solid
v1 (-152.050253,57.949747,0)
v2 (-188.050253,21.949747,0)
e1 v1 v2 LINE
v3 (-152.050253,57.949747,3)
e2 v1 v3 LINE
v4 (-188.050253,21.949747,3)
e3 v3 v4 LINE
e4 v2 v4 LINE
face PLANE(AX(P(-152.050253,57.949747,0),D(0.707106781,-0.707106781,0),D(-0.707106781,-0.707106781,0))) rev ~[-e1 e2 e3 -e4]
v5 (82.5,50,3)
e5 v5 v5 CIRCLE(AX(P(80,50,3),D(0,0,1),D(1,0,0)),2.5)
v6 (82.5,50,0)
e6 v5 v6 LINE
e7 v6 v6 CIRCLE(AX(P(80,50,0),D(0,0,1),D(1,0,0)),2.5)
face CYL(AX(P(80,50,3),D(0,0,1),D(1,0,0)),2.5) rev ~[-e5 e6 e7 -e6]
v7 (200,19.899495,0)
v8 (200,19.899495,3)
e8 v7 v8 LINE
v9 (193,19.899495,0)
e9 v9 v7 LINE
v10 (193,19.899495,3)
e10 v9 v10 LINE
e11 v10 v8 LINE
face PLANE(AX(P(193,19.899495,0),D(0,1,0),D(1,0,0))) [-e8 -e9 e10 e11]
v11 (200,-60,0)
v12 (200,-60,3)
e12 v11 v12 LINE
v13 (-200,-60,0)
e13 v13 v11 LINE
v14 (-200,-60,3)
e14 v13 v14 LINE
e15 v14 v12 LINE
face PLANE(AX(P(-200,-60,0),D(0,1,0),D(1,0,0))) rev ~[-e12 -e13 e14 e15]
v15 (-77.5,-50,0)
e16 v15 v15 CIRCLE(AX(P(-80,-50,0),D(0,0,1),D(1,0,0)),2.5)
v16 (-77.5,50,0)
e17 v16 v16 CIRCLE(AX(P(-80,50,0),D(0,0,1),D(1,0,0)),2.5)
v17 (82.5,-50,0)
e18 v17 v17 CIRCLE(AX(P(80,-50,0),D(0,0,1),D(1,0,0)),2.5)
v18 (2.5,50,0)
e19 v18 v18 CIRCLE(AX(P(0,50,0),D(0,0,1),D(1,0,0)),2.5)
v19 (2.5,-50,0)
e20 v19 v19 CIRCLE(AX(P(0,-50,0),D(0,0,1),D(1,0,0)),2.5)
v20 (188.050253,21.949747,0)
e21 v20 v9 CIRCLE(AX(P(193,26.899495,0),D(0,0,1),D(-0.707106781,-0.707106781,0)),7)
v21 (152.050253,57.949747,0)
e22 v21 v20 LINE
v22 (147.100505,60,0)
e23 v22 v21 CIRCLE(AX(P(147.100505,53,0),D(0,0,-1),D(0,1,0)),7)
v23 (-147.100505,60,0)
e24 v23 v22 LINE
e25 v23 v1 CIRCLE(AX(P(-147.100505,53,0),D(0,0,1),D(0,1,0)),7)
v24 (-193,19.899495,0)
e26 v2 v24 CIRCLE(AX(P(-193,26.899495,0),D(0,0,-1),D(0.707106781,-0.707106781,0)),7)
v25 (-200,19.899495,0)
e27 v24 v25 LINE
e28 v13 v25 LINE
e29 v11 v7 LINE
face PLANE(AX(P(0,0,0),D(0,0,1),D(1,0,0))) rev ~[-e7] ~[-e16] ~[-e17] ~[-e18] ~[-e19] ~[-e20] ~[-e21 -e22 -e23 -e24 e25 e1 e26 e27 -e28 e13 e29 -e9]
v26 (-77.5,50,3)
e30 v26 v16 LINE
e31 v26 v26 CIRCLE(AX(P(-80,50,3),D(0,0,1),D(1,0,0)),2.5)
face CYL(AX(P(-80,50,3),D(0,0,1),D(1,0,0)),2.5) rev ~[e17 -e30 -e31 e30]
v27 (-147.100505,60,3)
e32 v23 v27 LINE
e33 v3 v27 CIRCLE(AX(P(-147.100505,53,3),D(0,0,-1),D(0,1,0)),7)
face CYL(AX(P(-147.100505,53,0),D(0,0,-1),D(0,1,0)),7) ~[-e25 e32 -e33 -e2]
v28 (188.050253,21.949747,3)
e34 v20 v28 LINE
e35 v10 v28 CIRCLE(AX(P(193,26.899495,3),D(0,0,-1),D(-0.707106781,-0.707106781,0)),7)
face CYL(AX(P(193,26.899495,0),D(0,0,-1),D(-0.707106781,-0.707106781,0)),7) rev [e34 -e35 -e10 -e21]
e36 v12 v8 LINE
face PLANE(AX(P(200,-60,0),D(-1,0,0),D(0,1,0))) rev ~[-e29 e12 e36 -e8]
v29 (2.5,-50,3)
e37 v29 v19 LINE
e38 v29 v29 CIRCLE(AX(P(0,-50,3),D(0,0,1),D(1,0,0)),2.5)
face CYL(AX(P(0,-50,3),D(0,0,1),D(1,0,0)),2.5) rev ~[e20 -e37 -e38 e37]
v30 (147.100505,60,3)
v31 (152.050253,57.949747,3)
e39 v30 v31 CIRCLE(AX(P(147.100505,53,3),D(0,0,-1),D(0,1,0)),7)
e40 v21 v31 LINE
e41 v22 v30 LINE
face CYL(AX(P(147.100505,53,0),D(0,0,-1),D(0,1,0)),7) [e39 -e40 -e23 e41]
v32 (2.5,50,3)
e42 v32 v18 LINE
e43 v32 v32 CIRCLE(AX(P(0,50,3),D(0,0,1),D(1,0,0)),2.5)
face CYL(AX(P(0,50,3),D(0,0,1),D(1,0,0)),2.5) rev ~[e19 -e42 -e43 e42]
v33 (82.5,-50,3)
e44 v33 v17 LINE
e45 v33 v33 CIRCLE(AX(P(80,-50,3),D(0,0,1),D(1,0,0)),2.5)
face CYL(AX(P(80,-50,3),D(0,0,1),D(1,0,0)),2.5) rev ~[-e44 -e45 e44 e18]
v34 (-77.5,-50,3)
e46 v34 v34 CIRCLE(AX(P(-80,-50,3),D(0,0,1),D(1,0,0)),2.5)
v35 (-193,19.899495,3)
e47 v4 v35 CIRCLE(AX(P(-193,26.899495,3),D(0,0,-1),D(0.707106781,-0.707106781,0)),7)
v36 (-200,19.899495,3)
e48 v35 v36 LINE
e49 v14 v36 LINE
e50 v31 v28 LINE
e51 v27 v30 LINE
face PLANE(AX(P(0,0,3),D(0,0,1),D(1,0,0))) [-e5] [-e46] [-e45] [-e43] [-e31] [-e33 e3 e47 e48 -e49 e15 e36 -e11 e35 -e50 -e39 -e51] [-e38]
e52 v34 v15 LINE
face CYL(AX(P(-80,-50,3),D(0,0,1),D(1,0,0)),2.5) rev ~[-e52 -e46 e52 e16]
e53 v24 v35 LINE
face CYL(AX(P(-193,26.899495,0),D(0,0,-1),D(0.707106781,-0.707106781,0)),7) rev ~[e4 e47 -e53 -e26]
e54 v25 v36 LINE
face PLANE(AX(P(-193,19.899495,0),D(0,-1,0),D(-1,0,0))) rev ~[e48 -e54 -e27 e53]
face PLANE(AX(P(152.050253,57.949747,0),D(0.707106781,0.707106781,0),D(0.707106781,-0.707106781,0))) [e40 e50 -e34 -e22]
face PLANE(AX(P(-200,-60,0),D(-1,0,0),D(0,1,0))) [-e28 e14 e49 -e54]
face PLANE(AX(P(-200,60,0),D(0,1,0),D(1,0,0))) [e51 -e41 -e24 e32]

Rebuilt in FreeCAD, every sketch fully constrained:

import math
import FreeCAD as App
import Part
import Sketcher
Q = App.Units.Quantity


def add_polygon(sketch, points):
    """Adds a closed chain of lines whose ends are joined by coincident constraints."""
    first, n = sketch.GeometryCount, len(points)
    for a, b in zip(points, points[1:] + points[:1]):
        sketch.addGeometry(Part.LineSegment(App.Vector(*a, 0), App.Vector(*b, 0)), False)
    for i in range(n):
        sketch.addConstraint(Sketcher.Constraint("Coincident", first + i, 2, first + (i + 1) % n, 1))

doc = App.newDocument("Part")
body = doc.addObject("PartDesign::Body", "Body")

# Sketch on XY plane
sketch1 = body.newObject("Sketcher::SketchObject", "Sketch")
sketch1.AttachmentSupport = (doc.getObject("XY_Plane"), [""])
sketch1.MapMode = "FlatFace"
add_polygon(sketch1, [(-200, 60), (-200, -60), (200, -60), (200, 60)])  # lines 0-3
sketch1.addConstraint([
    Sketcher.Constraint("Vertical", 0),
    Sketcher.Constraint("Horizontal", 1),
    Sketcher.Constraint("Vertical", 2),
    Sketcher.Constraint("Horizontal", 3),
    Sketcher.Constraint("Symmetric", 0, 2, 2, 2, -1, 1),
    Sketcher.Constraint("DistanceX", 1, 1, 1, 2, 400.0),
    Sketcher.Constraint("DistanceY", 0, 2, 0, 1, 120.0),
])
pad1 = body.newObject("PartDesign::Pad", "Pad")
pad1.Profile = sketch1
pad1.Length = 3

# Sketch on XY plane
sketch2 = body.newObject("Sketcher::SketchObject", "Sketch001")
sketch2.AttachmentSupport = (doc.getObject("XY_Plane"), [""])
sketch2.MapMode = "FlatFace"
sketch2.addGeometry([
    Part.LineSegment(App.Vector(-200, 60, 0), App.Vector(-147, 60, 0)),  # 0
    Part.ArcOfCircle(Part.Circle(App.Vector(-147, 53, 0), App.Vector(0, 0, 1), 7), math.radians(90), math.radians(135)),  # 1
    Part.LineSegment(App.Vector(-152, 58, 0), App.Vector(-188, 22, 0)),  # 2
    Part.ArcOfCircle(Part.Circle(App.Vector(-193, 27, 0), App.Vector(0, 0, 1), 7), math.radians(-90), math.radians(-45)),  # 3
    Part.LineSegment(App.Vector(-193, 20, 0), App.Vector(-200, 20, 0)),  # 4
    Part.LineSegment(App.Vector(-200, 20, 0), App.Vector(-200, 60, 0)),  # 5
], False)
sketch2.addConstraint([
    Sketcher.Constraint("Tangent", 0, 2, 1, 1),
    Sketcher.Constraint("Tangent", 1, 2, 2, 1),
    Sketcher.Constraint("Tangent", 2, 2, 3, 2),
    Sketcher.Constraint("Tangent", 3, 1, 4, 1),
    Sketcher.Constraint("Coincident", 4, 2, 5, 1),
    Sketcher.Constraint("Coincident", 5, 2, 0, 1),
    Sketcher.Constraint("Horizontal", 0),
    Sketcher.Constraint("Horizontal", 4),
    Sketcher.Constraint("Vertical", 5),
    Sketcher.Constraint("Equal", 1, 3),
    Sketcher.Constraint("Radius", 1, 7.0),
    Sketcher.Constraint("DistanceX", 4, 2, 4, 1, 7.0),
    Sketcher.Constraint("Angle", 2, Q("-135 deg")),
    Sketcher.Constraint("DistanceY", -1, 1, 1, 3, 53.0),
    Sketcher.Constraint("DistanceX", 3, 3, -1, 1, 193.0),
    Sketcher.Constraint("DistanceX", 2, 2, 1, 2, 36.0),
])
pocket1 = body.newObject("PartDesign::Pocket", "Pocket")
pocket1.Profile = sketch2
pocket1.Type = "UpToFirst"
pocket1.Reversed = True

# Sketch on XY plane
sketch3 = body.newObject("Sketcher::SketchObject", "Sketch002")
sketch3.AttachmentSupport = (doc.getObject("XY_Plane"), [""])
sketch3.MapMode = "FlatFace"
sketch3.addGeometry([
    Part.LineSegment(App.Vector(188, 22, 0), App.Vector(152, 58, 0)),  # 0
    Part.ArcOfCircle(Part.Circle(App.Vector(147, 53, 0), App.Vector(0, 0, 1), 7), math.radians(45), math.radians(90)),  # 1
    Part.LineSegment(App.Vector(147, 60, 0), App.Vector(200, 60, 0)),  # 2
    Part.LineSegment(App.Vector(200, 60, 0), App.Vector(200, 20, 0)),  # 3
    Part.LineSegment(App.Vector(200, 20, 0), App.Vector(193, 20, 0)),  # 4
    Part.ArcOfCircle(Part.Circle(App.Vector(193, 27, 0), App.Vector(0, 0, 1), 7), math.radians(-135), math.radians(-90)),  # 5
], False)
sketch3.addConstraint([
    Sketcher.Constraint("Tangent", 0, 2, 1, 1),
    Sketcher.Constraint("Tangent", 1, 2, 2, 1),
    Sketcher.Constraint("Coincident", 2, 2, 3, 1),
    Sketcher.Constraint("Coincident", 3, 2, 4, 1),
    Sketcher.Constraint("Tangent", 4, 2, 5, 2),
    Sketcher.Constraint("Tangent", 5, 1, 0, 1),
    Sketcher.Constraint("Horizontal", 2),
    Sketcher.Constraint("Vertical", 3),
    Sketcher.Constraint("Horizontal", 4),
    Sketcher.Constraint("Equal", 1, 5),
    Sketcher.Constraint("Radius", 1, 7.0),
    Sketcher.Constraint("DistanceX", 4, 2, 4, 1, 7.0),
    Sketcher.Constraint("Angle", 0, Q("135 deg")),
    Sketcher.Constraint("DistanceY", -1, 1, 1, 3, 53.0),
    Sketcher.Constraint("DistanceX", -1, 1, 5, 3, 193.0),
    Sketcher.Constraint("DistanceX", 0, 2, 5, 1, 36.0),
])
pocket2 = body.newObject("PartDesign::Pocket", "Pocket001")
pocket2.Profile = sketch3
pocket2.Type = "UpToFirst"
pocket2.Reversed = True

# Sketch on XY plane
sketch4 = body.newObject("Sketcher::SketchObject", "Sketch003")
sketch4.AttachmentSupport = (doc.getObject("XY_Plane"), [""])
sketch4.MapMode = "FlatFace"
sketch4.AttachmentOffset = App.Placement(App.Vector(0, 0, 3), App.Rotation())
sketch4.addGeometry(Part.Circle(App.Vector(-80, 50, 0), App.Vector(0, 0, 1), 2.5), False)
sketch4.addConstraint([
    Sketcher.Constraint("Diameter", 0, 5.0),
    Sketcher.Constraint("DistanceX", 0, 3, -1, 1, 80.0),
    Sketcher.Constraint("DistanceY", -1, 1, 0, 3, 50.0),
])
pocket3 = body.newObject("PartDesign::Pocket", "Pocket002")
pocket3.Profile = sketch4
pocket3.Type = "UpToFirst"

# Sketch on XY plane
sketch5 = body.newObject("Sketcher::SketchObject", "Sketch004")
sketch5.AttachmentSupport = (doc.getObject("XY_Plane"), [""])
sketch5.MapMode = "FlatFace"
sketch5.AttachmentOffset = App.Placement(App.Vector(0, 0, 3), App.Rotation())
sketch5.addGeometry(Part.Circle(App.Vector(0, 50, 0), App.Vector(0, 0, 1), 2.5), False)
sketch5.addConstraint([
    Sketcher.Constraint("PointOnObject", 0, 3, -2),
    Sketcher.Constraint("Diameter", 0, 5.0),
    Sketcher.Constraint("DistanceY", -1, 1, 0, 3, 50.0),
])
pocket4 = body.newObject("PartDesign::Pocket", "Pocket003")
pocket4.Profile = sketch5
pocket4.Type = "UpToFirst"

# Sketch on XY plane
sketch6 = body.newObject("Sketcher::SketchObject", "Sketch005")
sketch6.AttachmentSupport = (doc.getObject("XY_Plane"), [""])
sketch6.MapMode = "FlatFace"
sketch6.AttachmentOffset = App.Placement(App.Vector(0, 0, 3), App.Rotation())
sketch6.addGeometry(Part.Circle(App.Vector(0, -50, 0), App.Vector(0, 0, 1), 2.5), False)
sketch6.addConstraint([
    Sketcher.Constraint("PointOnObject", 0, 3, -2),
    Sketcher.Constraint("Diameter", 0, 5.0),
    Sketcher.Constraint("DistanceY", 0, 3, -1, 1, 50.0),
])
pocket5 = body.newObject("PartDesign::Pocket", "Pocket004")
pocket5.Profile = sketch6
pocket5.Type = "UpToFirst"

# Sketch on XY plane
sketch7 = body.newObject("Sketcher::SketchObject", "Sketch006")
sketch7.AttachmentSupport = (doc.getObject("XY_Plane"), [""])
sketch7.MapMode = "FlatFace"
sketch7.AttachmentOffset = App.Placement(App.Vector(0, 0, 3), App.Rotation())
sketch7.addGeometry(Part.Circle(App.Vector(-80, -50, 0), App.Vector(0, 0, 1), 2.5), False)
sketch7.addConstraint([
    Sketcher.Constraint("Diameter", 0, 5.0),
    Sketcher.Constraint("DistanceX", 0, 3, -1, 1, 80.0),
    Sketcher.Constraint("DistanceY", 0, 3, -1, 1, 50.0),
])
pocket6 = body.newObject("PartDesign::Pocket", "Pocket005")
pocket6.Profile = sketch7
pocket6.Type = "UpToFirst"

# Sketch on XY plane
sketch8 = body.newObject("Sketcher::SketchObject", "Sketch007")
sketch8.AttachmentSupport = (doc.getObject("XY_Plane"), [""])
sketch8.MapMode = "FlatFace"
sketch8.AttachmentOffset = App.Placement(App.Vector(0, 0, 3), App.Rotation())
sketch8.addGeometry(Part.Circle(App.Vector(80, -50, 0), App.Vector(0, 0, 1), 2.5), False)
sketch8.addConstraint([
    Sketcher.Constraint("Diameter", 0, 5.0),
    Sketcher.Constraint("DistanceX", -1, 1, 0, 3, 80.0),
    Sketcher.Constraint("DistanceY", 0, 3, -1, 1, 50.0),
])
pocket7 = body.newObject("PartDesign::Pocket", "Pocket006")
pocket7.Profile = sketch8
pocket7.Type = "UpToFirst"

# Sketch on XY plane
sketch9 = body.newObject("Sketcher::SketchObject", "Sketch008")
sketch9.AttachmentSupport = (doc.getObject("XY_Plane"), [""])
sketch9.MapMode = "FlatFace"
sketch9.AttachmentOffset = App.Placement(App.Vector(0, 0, 3), App.Rotation())
sketch9.addGeometry(Part.Circle(App.Vector(80, 50, 0), App.Vector(0, 0, 1), 2.5), False)
sketch9.addConstraint([
    Sketcher.Constraint("Diameter", 0, 5.0),
    Sketcher.Constraint("DistanceX", -1, 1, 0, 3, 80.0),
    Sketcher.Constraint("DistanceY", -1, 1, 0, 3, 50.0),
])
pocket8 = body.newObject("PartDesign::Pocket", "Pocket007")
pocket8.Profile = sketch9
pocket8.Type = "UpToFirst"

doc.recompute()
